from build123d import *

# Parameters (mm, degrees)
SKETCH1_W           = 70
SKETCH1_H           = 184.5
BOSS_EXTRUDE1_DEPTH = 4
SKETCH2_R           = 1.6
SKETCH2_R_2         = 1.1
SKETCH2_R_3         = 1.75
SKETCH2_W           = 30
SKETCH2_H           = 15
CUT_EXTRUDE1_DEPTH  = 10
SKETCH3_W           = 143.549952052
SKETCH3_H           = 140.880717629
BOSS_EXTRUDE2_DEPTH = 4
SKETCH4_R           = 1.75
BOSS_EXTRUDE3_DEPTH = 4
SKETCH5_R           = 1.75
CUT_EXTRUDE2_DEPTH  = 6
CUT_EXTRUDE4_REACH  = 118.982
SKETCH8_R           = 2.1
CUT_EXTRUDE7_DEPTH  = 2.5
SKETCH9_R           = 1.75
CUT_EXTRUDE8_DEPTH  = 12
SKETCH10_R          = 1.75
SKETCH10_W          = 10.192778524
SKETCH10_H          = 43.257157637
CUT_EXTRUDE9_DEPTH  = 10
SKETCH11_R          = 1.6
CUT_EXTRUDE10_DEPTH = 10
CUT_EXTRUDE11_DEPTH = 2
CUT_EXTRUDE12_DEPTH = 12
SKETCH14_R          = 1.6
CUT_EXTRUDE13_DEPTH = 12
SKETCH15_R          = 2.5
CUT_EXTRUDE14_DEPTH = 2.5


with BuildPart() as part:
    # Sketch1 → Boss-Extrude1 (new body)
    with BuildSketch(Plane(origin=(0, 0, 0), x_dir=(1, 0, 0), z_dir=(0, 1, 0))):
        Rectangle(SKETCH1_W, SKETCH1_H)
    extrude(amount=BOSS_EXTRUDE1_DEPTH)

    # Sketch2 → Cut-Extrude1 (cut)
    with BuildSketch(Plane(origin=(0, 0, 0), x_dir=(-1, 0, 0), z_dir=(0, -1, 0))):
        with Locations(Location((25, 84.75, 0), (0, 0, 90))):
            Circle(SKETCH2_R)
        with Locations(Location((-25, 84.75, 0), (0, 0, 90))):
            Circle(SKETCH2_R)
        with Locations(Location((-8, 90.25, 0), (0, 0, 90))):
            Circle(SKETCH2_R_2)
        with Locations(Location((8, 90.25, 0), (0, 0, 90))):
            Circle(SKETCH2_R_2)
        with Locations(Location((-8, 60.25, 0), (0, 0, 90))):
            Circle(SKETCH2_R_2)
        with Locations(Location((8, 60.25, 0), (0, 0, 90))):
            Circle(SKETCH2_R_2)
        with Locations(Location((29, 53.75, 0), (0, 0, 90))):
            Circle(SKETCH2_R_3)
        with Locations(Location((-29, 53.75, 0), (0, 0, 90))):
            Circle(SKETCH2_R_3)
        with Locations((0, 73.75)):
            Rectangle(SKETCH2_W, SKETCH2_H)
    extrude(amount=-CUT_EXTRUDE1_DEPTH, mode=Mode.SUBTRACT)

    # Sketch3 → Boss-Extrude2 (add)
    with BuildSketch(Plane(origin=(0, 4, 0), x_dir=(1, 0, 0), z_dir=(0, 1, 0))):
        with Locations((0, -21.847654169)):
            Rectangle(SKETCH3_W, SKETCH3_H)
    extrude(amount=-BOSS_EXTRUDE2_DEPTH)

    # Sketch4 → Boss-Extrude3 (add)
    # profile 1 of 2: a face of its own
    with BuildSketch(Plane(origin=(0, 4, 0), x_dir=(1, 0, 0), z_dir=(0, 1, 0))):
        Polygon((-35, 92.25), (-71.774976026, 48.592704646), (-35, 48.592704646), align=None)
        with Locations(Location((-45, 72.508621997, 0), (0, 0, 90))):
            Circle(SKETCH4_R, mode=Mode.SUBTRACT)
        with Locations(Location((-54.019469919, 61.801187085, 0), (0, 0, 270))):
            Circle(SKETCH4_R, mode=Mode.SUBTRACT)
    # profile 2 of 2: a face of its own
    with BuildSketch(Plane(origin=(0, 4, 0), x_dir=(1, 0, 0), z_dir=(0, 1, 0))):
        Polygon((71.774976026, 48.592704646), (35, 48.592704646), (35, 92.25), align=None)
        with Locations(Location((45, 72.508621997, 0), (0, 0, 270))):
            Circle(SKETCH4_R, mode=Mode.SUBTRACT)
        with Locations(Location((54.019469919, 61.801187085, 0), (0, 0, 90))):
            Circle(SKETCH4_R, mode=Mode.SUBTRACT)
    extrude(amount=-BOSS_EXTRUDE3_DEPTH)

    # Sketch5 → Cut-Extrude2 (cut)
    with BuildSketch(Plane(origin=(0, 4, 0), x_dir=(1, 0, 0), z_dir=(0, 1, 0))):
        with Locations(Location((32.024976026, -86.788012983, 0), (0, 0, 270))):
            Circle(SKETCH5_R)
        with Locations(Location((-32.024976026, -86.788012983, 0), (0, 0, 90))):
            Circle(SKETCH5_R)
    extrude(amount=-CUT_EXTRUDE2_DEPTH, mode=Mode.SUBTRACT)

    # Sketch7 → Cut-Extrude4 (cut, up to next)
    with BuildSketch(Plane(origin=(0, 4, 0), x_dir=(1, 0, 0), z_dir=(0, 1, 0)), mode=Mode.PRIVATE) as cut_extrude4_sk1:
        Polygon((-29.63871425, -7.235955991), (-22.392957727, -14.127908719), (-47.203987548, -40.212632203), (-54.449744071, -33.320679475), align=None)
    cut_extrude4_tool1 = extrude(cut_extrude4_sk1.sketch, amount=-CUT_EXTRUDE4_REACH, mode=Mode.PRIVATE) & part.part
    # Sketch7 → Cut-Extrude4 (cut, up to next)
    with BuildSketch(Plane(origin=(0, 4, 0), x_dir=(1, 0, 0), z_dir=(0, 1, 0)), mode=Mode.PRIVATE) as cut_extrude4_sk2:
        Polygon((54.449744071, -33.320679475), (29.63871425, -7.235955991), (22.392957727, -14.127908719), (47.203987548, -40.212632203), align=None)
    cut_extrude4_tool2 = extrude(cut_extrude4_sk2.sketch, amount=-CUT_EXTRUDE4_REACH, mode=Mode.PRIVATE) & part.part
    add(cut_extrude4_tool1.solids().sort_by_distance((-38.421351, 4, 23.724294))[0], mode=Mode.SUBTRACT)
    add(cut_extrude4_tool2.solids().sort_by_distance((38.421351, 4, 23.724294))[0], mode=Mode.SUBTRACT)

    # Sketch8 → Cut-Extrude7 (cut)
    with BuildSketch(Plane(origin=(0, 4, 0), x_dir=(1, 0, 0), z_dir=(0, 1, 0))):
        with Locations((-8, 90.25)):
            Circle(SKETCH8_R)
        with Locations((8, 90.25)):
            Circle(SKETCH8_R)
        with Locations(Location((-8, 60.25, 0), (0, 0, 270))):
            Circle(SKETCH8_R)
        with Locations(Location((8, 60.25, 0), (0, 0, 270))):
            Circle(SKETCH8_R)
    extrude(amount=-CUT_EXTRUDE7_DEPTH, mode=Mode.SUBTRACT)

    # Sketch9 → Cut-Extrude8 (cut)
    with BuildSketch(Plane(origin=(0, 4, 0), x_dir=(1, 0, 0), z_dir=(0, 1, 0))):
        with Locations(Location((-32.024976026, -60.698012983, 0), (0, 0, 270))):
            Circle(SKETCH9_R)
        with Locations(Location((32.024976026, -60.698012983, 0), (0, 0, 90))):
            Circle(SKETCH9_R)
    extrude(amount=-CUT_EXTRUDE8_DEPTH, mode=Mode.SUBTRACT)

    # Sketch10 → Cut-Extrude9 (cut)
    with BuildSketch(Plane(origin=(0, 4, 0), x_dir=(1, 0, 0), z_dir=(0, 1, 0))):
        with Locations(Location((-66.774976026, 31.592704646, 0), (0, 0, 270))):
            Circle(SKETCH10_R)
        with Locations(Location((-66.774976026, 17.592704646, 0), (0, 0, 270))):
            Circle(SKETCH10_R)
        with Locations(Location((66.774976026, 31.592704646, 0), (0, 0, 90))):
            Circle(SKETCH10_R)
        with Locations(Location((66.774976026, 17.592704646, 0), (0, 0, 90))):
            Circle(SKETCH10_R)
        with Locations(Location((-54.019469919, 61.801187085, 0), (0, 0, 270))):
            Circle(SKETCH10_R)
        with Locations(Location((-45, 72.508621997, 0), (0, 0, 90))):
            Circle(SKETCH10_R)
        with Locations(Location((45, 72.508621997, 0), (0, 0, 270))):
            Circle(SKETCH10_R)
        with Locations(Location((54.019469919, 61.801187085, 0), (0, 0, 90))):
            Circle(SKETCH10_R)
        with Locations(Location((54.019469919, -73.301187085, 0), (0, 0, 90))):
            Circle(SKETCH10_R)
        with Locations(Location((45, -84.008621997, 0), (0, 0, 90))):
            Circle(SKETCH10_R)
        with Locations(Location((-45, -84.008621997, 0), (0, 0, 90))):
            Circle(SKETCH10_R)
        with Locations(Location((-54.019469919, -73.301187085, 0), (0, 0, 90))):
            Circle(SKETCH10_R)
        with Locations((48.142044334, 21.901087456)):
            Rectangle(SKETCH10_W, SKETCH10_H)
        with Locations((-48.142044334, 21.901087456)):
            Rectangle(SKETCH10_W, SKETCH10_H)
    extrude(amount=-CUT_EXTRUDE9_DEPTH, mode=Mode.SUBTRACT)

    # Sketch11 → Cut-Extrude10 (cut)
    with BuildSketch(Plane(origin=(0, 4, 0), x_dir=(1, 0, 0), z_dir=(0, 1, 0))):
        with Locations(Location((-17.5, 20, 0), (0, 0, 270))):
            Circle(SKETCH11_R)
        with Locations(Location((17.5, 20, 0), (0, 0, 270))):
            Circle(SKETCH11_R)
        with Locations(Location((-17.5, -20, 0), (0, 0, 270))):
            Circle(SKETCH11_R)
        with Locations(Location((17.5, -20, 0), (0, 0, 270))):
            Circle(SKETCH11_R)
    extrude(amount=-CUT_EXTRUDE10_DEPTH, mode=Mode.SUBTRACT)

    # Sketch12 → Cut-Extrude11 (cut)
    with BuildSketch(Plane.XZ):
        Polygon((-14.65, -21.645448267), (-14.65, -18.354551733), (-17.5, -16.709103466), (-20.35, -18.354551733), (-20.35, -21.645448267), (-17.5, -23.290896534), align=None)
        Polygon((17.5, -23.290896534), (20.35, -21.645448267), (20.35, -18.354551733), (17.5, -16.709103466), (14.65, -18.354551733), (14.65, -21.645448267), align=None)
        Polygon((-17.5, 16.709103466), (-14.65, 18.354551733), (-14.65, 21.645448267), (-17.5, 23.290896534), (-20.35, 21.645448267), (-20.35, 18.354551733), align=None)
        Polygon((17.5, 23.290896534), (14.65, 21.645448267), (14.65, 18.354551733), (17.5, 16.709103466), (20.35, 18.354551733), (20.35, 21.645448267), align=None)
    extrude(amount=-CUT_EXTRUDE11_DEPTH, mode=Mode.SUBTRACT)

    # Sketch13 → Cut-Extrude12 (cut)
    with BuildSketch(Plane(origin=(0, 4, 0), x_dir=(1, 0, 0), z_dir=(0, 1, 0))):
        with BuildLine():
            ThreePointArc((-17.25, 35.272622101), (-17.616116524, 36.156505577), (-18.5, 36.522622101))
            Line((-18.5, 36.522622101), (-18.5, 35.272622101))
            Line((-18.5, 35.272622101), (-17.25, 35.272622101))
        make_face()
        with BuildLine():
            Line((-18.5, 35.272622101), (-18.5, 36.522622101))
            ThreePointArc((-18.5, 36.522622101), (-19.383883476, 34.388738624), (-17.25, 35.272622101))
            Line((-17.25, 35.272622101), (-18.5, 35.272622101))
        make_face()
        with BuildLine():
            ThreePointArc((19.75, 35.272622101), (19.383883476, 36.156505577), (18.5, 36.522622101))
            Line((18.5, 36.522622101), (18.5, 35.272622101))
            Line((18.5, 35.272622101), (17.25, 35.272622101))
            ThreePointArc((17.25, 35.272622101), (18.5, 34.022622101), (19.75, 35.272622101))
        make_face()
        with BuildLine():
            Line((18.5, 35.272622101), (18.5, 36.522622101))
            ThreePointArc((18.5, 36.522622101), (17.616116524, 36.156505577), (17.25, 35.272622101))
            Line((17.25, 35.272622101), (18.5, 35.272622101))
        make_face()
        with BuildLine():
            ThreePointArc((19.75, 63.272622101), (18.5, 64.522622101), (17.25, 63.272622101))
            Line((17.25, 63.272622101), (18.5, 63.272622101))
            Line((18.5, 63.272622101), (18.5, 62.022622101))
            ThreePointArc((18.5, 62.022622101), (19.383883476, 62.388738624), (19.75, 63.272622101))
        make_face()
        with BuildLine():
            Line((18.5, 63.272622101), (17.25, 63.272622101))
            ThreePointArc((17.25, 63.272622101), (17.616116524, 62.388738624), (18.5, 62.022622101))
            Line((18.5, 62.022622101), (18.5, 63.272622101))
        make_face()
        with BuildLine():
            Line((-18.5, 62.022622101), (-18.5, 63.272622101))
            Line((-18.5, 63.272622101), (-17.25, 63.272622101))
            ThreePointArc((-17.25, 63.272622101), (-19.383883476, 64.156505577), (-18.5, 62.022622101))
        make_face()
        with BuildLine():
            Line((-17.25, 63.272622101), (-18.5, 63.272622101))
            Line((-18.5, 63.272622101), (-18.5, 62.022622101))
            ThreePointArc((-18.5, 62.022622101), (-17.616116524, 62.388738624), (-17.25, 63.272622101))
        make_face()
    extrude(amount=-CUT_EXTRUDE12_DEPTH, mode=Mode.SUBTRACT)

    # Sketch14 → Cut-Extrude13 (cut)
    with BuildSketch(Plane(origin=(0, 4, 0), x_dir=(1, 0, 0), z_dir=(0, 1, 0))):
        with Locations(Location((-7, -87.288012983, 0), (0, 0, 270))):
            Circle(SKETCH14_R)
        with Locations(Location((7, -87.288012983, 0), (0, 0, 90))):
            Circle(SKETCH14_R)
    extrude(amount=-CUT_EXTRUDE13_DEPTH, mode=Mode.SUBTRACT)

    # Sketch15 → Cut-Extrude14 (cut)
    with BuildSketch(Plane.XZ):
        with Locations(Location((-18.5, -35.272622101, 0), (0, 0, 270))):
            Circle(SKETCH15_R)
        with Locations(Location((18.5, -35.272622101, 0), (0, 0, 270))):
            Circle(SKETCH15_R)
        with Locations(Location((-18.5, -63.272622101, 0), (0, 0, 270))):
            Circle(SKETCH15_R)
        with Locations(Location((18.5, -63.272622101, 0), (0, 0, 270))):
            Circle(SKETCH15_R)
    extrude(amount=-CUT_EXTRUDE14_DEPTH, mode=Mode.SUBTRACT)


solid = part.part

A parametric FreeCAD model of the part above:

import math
import FreeCAD as App
import Part
import Sketcher

V = App.Vector
Q = App.Units.Quantity


def add_polygon(sketch, points):
    """Adds a closed chain of lines whose ends are joined by coincident constraints."""
    first, n = sketch.GeometryCount, len(points)
    for a, b in zip(points, points[1:] + points[:1]):
        sketch.addGeometry(Part.LineSegment(App.Vector(*a, 0), App.Vector(*b, 0)), False)
    for i in range(n):
        sketch.addConstraint(Sketcher.Constraint("Coincident", first + i, 2, first + (i + 1) % n, 1))

doc = App.newDocument("Part")
body = doc.addObject("PartDesign::Body", "Body")

# Sketch on XZ plane
sketch1 = body.newObject("Sketcher::SketchObject", "Sketch")
sketch1.AttachmentSupport = (doc.getObject("XZ_Plane"), [""])
sketch1.MapMode = "FlatFace"
add_polygon(sketch1, [(-35, -92), (-35, 92), (35, 92), (35, -92)])  # lines 0-3
sketch1.addConstraint(Sketcher.Constraint("Vertical", 0))
sketch1.addConstraint(Sketcher.Constraint("Horizontal", 1))
sketch1.addConstraint(Sketcher.Constraint("Vertical", 2))
sketch1.addConstraint(Sketcher.Constraint("Horizontal", 3))
sketch1.addConstraint(Sketcher.Constraint("Symmetric", 0, 2, 2, 2, -1, 1))
sketch1.addConstraint(Sketcher.Constraint("DistanceX", 1, 1, 1, 2, 70.0))
sketch1.addConstraint(Sketcher.Constraint("DistanceY", 0, 1, 0, 2, 184.5))
pad1 = body.newObject("PartDesign::Pad", "Pad")
pad1.Profile = sketch1
pad1.Length = 4
pad1.Reversed = True

# Sketch on XZ plane
sketch2 = body.newObject("Sketcher::SketchObject", "Sketch001")
sketch2.AttachmentSupport = (doc.getObject("XZ_Plane"), [""])
sketch2.MapMode = "FlatFace"
sketch2.addGeometry(Part.Circle(V(-25, -84.8, 0), V(0, 0, 1), 1.6), False)  # 0
sketch2.addGeometry(Part.Circle(V(25, -84.8, 0), V(0, 0, 1), 1.6), False)  # 1
sketch2.addGeometry(Part.Circle(V(8, -90.2, 0), V(0, 0, 1), 1.1), False)  # 2
sketch2.addGeometry(Part.Circle(V(-8, -90.2, 0), V(0, 0, 1), 1.1), False)  # 3
sketch2.addGeometry(Part.Circle(V(8, -60.2, 0), V(0, 0, 1), 1.1), False)  # 4
sketch2.addGeometry(Part.Circle(V(-8, -60.2, 0), V(0, 0, 1), 1.1), False)  # 5
sketch2.addGeometry(Part.Circle(V(-29, -53.8, 0), V(0, 0, 1), 1.8), False)  # 6
sketch2.addGeometry(Part.Circle(V(29, -53.8, 0), V(0, 0, 1), 1.8), False)  # 7
add_polygon(sketch2, [(15, -81.2), (15, -66.2), (-15, -66.2), (-15, -81.2)])  # lines 8-11
sketch2.addConstraint(Sketcher.Constraint("Vertical", 8))
sketch2.addConstraint(Sketcher.Constraint("Horizontal", 9))
sketch2.addConstraint(Sketcher.Constraint("Vertical", 10))
sketch2.addConstraint(Sketcher.Constraint("Horizontal", 11))
sketch2.addConstraint(Sketcher.Constraint("Equal", 0, 1))
sketch2.addConstraint(Sketcher.Constraint("Equal", 2, 3))
sketch2.addConstraint(Sketcher.Constraint("Equal", 3, 4))
sketch2.addConstraint(Sketcher.Constraint("Equal", 4, 5))
sketch2.addConstraint(Sketcher.Constraint("Equal", 6, 7))
sketch2.addConstraint(Sketcher.Constraint("Symmetric", 0, 3, 1, 3, -2))
sketch2.addConstraint(Sketcher.Constraint("Symmetric", 2, 3, 3, 3, -2))
sketch2.addConstraint(Sketcher.Constraint("Symmetric", 4, 3, 5, 3, -2))
sketch2.addConstraint(Sketcher.Constraint("Symmetric", 6, 3, 7, 3, -2))
sketch2.addConstraint(Sketcher.Constraint("Vertical", 2, 3, 4, 3))
sketch2.addConstraint(Sketcher.Constraint("Diameter", 0, 3.2))
sketch2.addConstraint(Sketcher.Constraint("Diameter", 2, 2.2))
sketch2.addConstraint(Sketcher.Constraint("Diameter", 6, 3.5))
sketch2.addConstraint(Sketcher.Constraint("DistanceX", 9, 2, 9, 1, 30.0))
sketch2.addConstraint(Sketcher.Constraint("DistanceY", 8, 1, 8, 2, 15.0))
sketch2.addConstraint(Sketcher.Constraint("DistanceX", 0, 3, -1, 1, 25.0))
sketch2.addConstraint(Sketcher.Constraint("DistanceX", -1, 1, 2, 3, 8.0))
sketch2.addConstraint(Sketcher.Constraint("DistanceX", 6, 3, -1, 1, 29.0))
sketch2.addConstraint(Sketcher.Constraint("DistanceX", -1, 1, 8, 2, 15.0))
sketch2.addConstraint(Sketcher.Constraint("DistanceY", 2, 3, 4, 3, 30.0))
sketch2.addConstraint(Sketcher.Constraint("DistanceY", 0, 3, 6, 3, 31.0))
sketch2.addConstraint(Sketcher.Constraint("DistanceY", 8, 2, 4, 3, 6.0))
sketch2.addConstraint(Sketcher.Constraint("DistanceY", 2, 3, 1, 3, 5.5))
sketch2.addConstraint(Sketcher.Constraint("DistanceY", 0, 3, -1, 1, 84.75))
pocket1 = body.newObject("PartDesign::Pocket", "Pocket")
pocket1.Profile = sketch2
pocket1.Length = 10

# Sketch on XZ plane
sketch3 = body.newObject("Sketcher::SketchObject", "Sketch002")
sketch3.AttachmentSupport = (doc.getObject("XZ_Plane"), [""])
sketch3.MapMode = "FlatFace"
sketch3.AttachmentOffset = App.Placement(V(0, 0, -4), App.Rotation())
add_polygon(sketch3, [(-72, -49), (-72, 92), (72, 92), (72, -49)])  # lines 0-3
sketch3.addConstraint(Sketcher.Constraint("Vertical", 0))
sketch3.addConstraint(Sketcher.Constraint("Horizontal", 1))
sketch3.addConstraint(Sketcher.Constraint("Vertical", 2))
sketch3.addConstraint(Sketcher.Constraint("Horizontal", 3))
sketch3.addConstraint(Sketcher.Constraint("DistanceX", 1, 1, 1, 2, 143.549952))
sketch3.addConstraint(Sketcher.Constraint("DistanceY", 0, 1, 0, 2, 140.880718))
sketch3.addConstraint(Sketcher.Constraint("DistanceX", 0, 2, -1, 1, 71.774976))
sketch3.addConstraint(Sketcher.Constraint("DistanceY", -1, 1, 0, 2, 92.288013))
pad2 = body.newObject("PartDesign::Pad", "Pad001")
pad2.Profile = sketch3
pad2.Length = 4

# Sketch on XZ plane
sketch4 = body.newObject("Sketcher::SketchObject", "Sketch003")
sketch4.AttachmentSupport = (doc.getObject("XZ_Plane"), [""])
sketch4.MapMode = "FlatFace"
sketch4.AttachmentOffset = App.Placement(V(0, 0, -4), App.Rotation())
add_polygon(sketch4, [(-35, -92.2), (-71.8, -48.6), (-35, -48.6)])  # lines 0-2
sketch4.addGeometry(Part.Circle(V(-54, -61.8, 0), V(0, 0, 1), 1.8), False)  # 3
sketch4.addGeometry(Part.Circle(V(-45, -72.5, 0), V(0, 0, 1), 1.8), False)  # 4
add_polygon(sketch4, [(35, -48.6), (71.8, -48.6), (35, -92.2)])  # lines 5-7
sketch4.addGeometry(Part.Circle(V(54, -61.8, 0), V(0, 0, 1), 1.8), False)  # 8
sketch4.addGeometry(Part.Circle(V(45, -72.5, 0), V(0, 0, 1), 1.8), False)  # 9
sketch4.addConstraint(Sketcher.Constraint("Horizontal", 1))
sketch4.addConstraint(Sketcher.Constraint("Vertical", 2))
sketch4.addConstraint(Sketcher.Constraint("Horizontal", 5))
sketch4.addConstraint(Sketcher.Constraint("Vertical", 7))
sketch4.addConstraint(Sketcher.Constraint("Equal", 3, 4))
sketch4.addConstraint(Sketcher.Constraint("Equal", 4, 8))
sketch4.addConstraint(Sketcher.Constraint("Equal", 8, 9))
sketch4.addConstraint(Sketcher.Constraint("Symmetric", 3, 3, 8, 3, -2))
sketch4.addConstraint(Sketcher.Constraint("Symmetric", 4, 3, 9, 3, -2))
sketch4.addConstraint(Sketcher.Constraint("Symmetric", 0, 2, 5, 2, -2))
sketch4.addConstraint(Sketcher.Constraint("Symmetric", 2, 2, 6, 2, -2))
sketch4.addConstraint(Sketcher.Constraint("Diameter", 3, 3.5))
sketch4.addConstraint(Sketcher.Constraint("DistanceX", 4, 3, -1, 1, 45.0))
sketch4.addConstraint(Sketcher.Constraint("DistanceX", 1, 2, -1, 1, 35.0))
sketch4.addConstraint(Sketcher.Constraint("DistanceY", 2, 2, -1, 1, 92.25))
sketch4.addConstraint(Sketcher.Constraint("Distance", 0, 57.082031))
sketch4.addConstraint(Sketcher.Constraint("DistanceX", 1, 1, 1, 2, 36.774976))
sketch4.addConstraint(Sketcher.Constraint("DistanceX", 3, 3, -1, 1, 54.01947))
sketch4.addConstraint(Sketcher.Constraint("DistanceY", 4, 3, -1, 1, 72.508622))
sketch4.addConstraint(Sketcher.Constraint("DistanceY", 3, 3, -1, 1, 61.801187))
pad3 = body.newObject("PartDesign::Pad", "Pad002")
pad3.Profile = sketch4
pad3.Length = 4

# Sketch on XZ plane
sketch5 = body.newObject("Sketcher::SketchObject", "Sketch004")
sketch5.AttachmentSupport = (doc.getObject("XZ_Plane"), [""])
sketch5.MapMode = "FlatFace"
sketch5.AttachmentOffset = App.Placement(V(0, 0, -4), App.Rotation())
sketch5.addGeometry(Part.Circle(V(32, 86.8, 0), V(0, 0, 1), 1.8), False)
sketch5.addGeometry(Part.Circle(V(-32, 86.8, 0), V(0, 0, 1), 1.8), False)
sketch5.addConstraint(Sketcher.Constraint("Equal", 0, 1))
sketch5.addConstraint(Sketcher.Constraint("Symmetric", 0, 3, 1, 3, -2))
sketch5.addConstraint(Sketcher.Constraint("Diameter", 0, 3.5))
sketch5.addConstraint(Sketcher.Constraint("DistanceX", -1, 1, 0, 3, 32.024976))
sketch5.addConstraint(Sketcher.Constraint("DistanceY", -1, 1, 0, 3, 86.788013))
pocket2 = body.newObject("PartDesign::Pocket", "Pocket001")
pocket2.Profile = sketch5
pocket2.Length = 6
pocket2.Reversed = True

# Sketch on XZ plane
sketch6 = body.newObject("Sketcher::SketchObject", "Sketch005")
sketch6.AttachmentSupport = (doc.getObject("XZ_Plane"), [""])
sketch6.MapMode = "FlatFace"
sketch6.AttachmentOffset = App.Placement(V(0, 0, -4), App.Rotation())
add_polygon(sketch6, [(-22, 14), (-30, 7), (-54, 33), (-47, 40)])  # lines 0-3
sketch6.addConstraint(Sketcher.Constraint("Perpendicular", 0, 1))
sketch6.addConstraint(Sketcher.Constraint("Perpendicular", 1, 2))
sketch6.addConstraint(Sketcher.Constraint("Perpendicular", 2, 3))
sketch6.addConstraint(Sketcher.Constraint("Distance", 0, 10.0))
sketch6.addConstraint(Sketcher.Constraint("Distance", 1, 36.0))
sketch6.addConstraint(Sketcher.Constraint("DistanceY", -1, 1, 1, 2, 33.320679))
sketch6.addConstraint(Sketcher.Constraint("DistanceY", -1, 1, 3, 2, 14.127909))
sketch6.addConstraint(Sketcher.Constraint("DistanceX", 0, 2, -1, 1, 29.638714))
pocket3 = body.newObject("PartDesign::Pocket", "Pocket002")
pocket3.Profile = sketch6
pocket3.Type = "UpToFirst"
pocket3.Reversed = True

# Sketch on XZ plane
sketch7 = body.newObject("Sketcher::SketchObject", "Sketch006")
sketch7.AttachmentSupport = (doc.getObject("XZ_Plane"), [""])
sketch7.MapMode = "FlatFace"
sketch7.AttachmentOffset = App.Placement(V(0, 0, -4), App.Rotation())
add_polygon(sketch7, [(54, 33), (30, 7), (22, 14), (47, 40)])  # lines 0-3
sketch7.addConstraint(Sketcher.Constraint("Perpendicular", 0, 1))
sketch7.addConstraint(Sketcher.Constraint("Perpendicular", 1, 2))
sketch7.addConstraint(Sketcher.Constraint("Perpendicular", 2, 3))
sketch7.addConstraint(Sketcher.Constraint("Distance", 0, 36.0))
sketch7.addConstraint(Sketcher.Constraint("Distance", 1, 10.0))
sketch7.addConstraint(Sketcher.Constraint("DistanceY", -1, 1, 1, 2, 14.127909))
sketch7.addConstraint(Sketcher.Constraint("DistanceY", -1, 1, 3, 2, 33.320679))
sketch7.addConstraint(Sketcher.Constraint("DistanceX", -1, 1, 0, 2, 29.638714))
pocket4 = body.newObject("PartDesign::Pocket", "Pocket003")
pocket4.Profile = sketch7
pocket4.Type = "UpToFirst"
pocket4.Reversed = True

# Sketch on XZ plane
sketch8 = body.newObject("Sketcher::SketchObject", "Sketch007")
sketch8.AttachmentSupport = (doc.getObject("XZ_Plane"), [""])
sketch8.MapMode = "FlatFace"
sketch8.AttachmentOffset = App.Placement(V(0, 0, -4), App.Rotation())
sketch8.addGeometry(Part.Circle(V(-8, -90.2, 0), V(0, 0, 1), 2.1), False)
sketch8.addGeometry(Part.Circle(V(8, -90.2, 0), V(0, 0, 1), 2.1), False)
sketch8.addGeometry(Part.Circle(V(-8, -60.2, 0), V(0, 0, 1), 2.1), False)
sketch8.addGeometry(Part.Circle(V(8, -60.2, 0), V(0, 0, 1), 2.1), False)
sketch8.addConstraint(Sketcher.Constraint("Equal", 0, 1))
sketch8.addConstraint(Sketcher.Constraint("Equal", 1, 2))
sketch8.addConstraint(Sketcher.Constraint("Equal", 2, 3))
sketch8.addConstraint(Sketcher.Constraint("Symmetric", 0, 3, 1, 3, -2))
sketch8.addConstraint(Sketcher.Constraint("Symmetric", 2, 3, 3, 3, -2))
sketch8.addConstraint(Sketcher.Constraint("Vertical", 0, 3, 2, 3))
sketch8.addConstraint(Sketcher.Constraint("Diameter", 0, 4.2))
sketch8.addConstraint(Sketcher.Constraint("DistanceX", 0, 3, -1, 1, 8.0))
sketch8.addConstraint(Sketcher.Constraint("DistanceY", 0, 3, 2, 3, 30.0))
sketch8.addConstraint(Sketcher.Constraint("DistanceY", 0, 3, -1, 1, 90.25))
pocket5 = body.newObject("PartDesign::Pocket", "Pocket004")
pocket5.Profile = sketch8
pocket5.Length = 2.5
pocket5.Reversed = True

# Sketch on XZ plane
sketch9 = body.newObject("Sketcher::SketchObject", "Sketch008")
sketch9.AttachmentSupport = (doc.getObject("XZ_Plane"), [""])
sketch9.MapMode = "FlatFace"
sketch9.AttachmentOffset = App.Placement(V(0, 0, -4), App.Rotation())
sketch9.addGeometry(Part.Circle(V(-32, 60.7, 0), V(0, 0, 1), 1.8), False)
sketch9.addGeometry(Part.Circle(V(32, 60.7, 0), V(0, 0, 1), 1.8), False)
sketch9.addConstraint(Sketcher.Constraint("Equal", 0, 1))
sketch9.addConstraint(Sketcher.Constraint("Symmetric", 0, 3, 1, 3, -2))
sketch9.addConstraint(Sketcher.Constraint("Diameter", 0, 3.5))
sketch9.addConstraint(Sketcher.Constraint("DistanceX", 0, 3, -1, 1, 32.024976))
sketch9.addConstraint(Sketcher.Constraint("DistanceY", -1, 1, 0, 3, 60.698013))
pocket6 = body.newObject("PartDesign::Pocket", "Pocket005")
pocket6.Profile = sketch9
pocket6.Length = 12
pocket6.Reversed = True

# Sketch on XZ plane
sketch10 = body.newObject("Sketcher::SketchObject", "Sketch009")
sketch10.AttachmentSupport = (doc.getObject("XZ_Plane"), [""])
sketch10.MapMode = "FlatFace"
sketch10.AttachmentOffset = App.Placement(V(0, 0, -4), App.Rotation())
sketch10.addGeometry(Part.Circle(V(-66.8, -31.6, 0), V(0, 0, 1), 1.8), False)  # 0
sketch10.addGeometry(Part.Circle(V(-66.8, -17.6, 0), V(0, 0, 1), 1.8), False)  # 1
sketch10.addGeometry(Part.Circle(V(66.8, -31.6, 0), V(0, 0, 1), 1.8), False)  # 2
sketch10.addGeometry(Part.Circle(V(66.8, -17.6, 0), V(0, 0, 1), 1.8), False)  # 3
sketch10.addGeometry(Part.Circle(V(-54, -61.8, 0), V(0, 0, 1), 1.8), False)  # 4
sketch10.addGeometry(Part.Circle(V(-45, -72.5, 0), V(0, 0, 1), 1.8), False)  # 5
sketch10.addGeometry(Part.Circle(V(45, -72.5, 0), V(0, 0, 1), 1.8), False)  # 6
sketch10.addGeometry(Part.Circle(V(54, -61.8, 0), V(0, 0, 1), 1.8), False)  # 7
sketch10.addGeometry(Part.Circle(V(54, 73.3, 0), V(0, 0, 1), 1.8), False)  # 8
sketch10.addGeometry(Part.Circle(V(45, 84, 0), V(0, 0, 1), 1.8), False)  # 9
sketch10.addGeometry(Part.Circle(V(-45, 84, 0), V(0, 0, 1), 1.8), False)  # 10
sketch10.addGeometry(Part.Circle(V(-54, 73.3, 0), V(0, 0, 1), 1.8), False)  # 11
add_polygon(sketch10, [(43, -43.5), (43, -0.3), (53.2, -0.3), (53.2, -43.5)])  # lines 12-15
add_polygon(sketch10, [(-53.2, -43.5), (-53.2, -0.3), (-43, -0.3), (-43, -43.5)])  # lines 16-19
sketch10.addConstraint(Sketcher.Constraint("Vertical", 12))
sketch10.addConstraint(Sketcher.Constraint("Horizontal", 13))
sketch10.addConstraint(Sketcher.Constraint("Vertical", 14))
sketch10.addConstraint(Sketcher.Constraint("Horizontal", 15))
sketch10.addConstraint(Sketcher.Constraint("Vertical", 16))
sketch10.addConstraint(Sketcher.Constraint("Horizontal", 17))
sketch10.addConstraint(Sketcher.Constraint("Vertical", 18))
sketch10.addConstraint(Sketcher.Constraint("Horizontal", 19))
sketch10.addConstraint(Sketcher.Constraint("Equal", 0, 1))
sketch10.addConstraint(Sketcher.Constraint("Equal", 1, 2))
sketch10.addConstraint(Sketcher.Constraint("Equal", 2, 3))
sketch10.addConstraint(Sketcher.Constraint("Equal", 3, 4))
sketch10.addConstraint(Sketcher.Constraint("Equal", 4, 5))
sketch10.addConstraint(Sketcher.Constraint("Equal", 5, 6))
sketch10.addConstraint(Sketcher.Constraint("Equal", 6, 7))
sketch10.addConstraint(Sketcher.Constraint("Equal", 7, 8))
sketch10.addConstraint(Sketcher.Constraint("Equal", 8, 9))
sketch10.addConstraint(Sketcher.Constraint("Equal", 9, 10))
sketch10.addConstraint(Sketcher.Constraint("Equal", 10, 11))
sketch10.addConstraint(Sketcher.Constraint("Symmetric", 0, 3, 2, 3, -2))
sketch10.addConstraint(Sketcher.Constraint("Symmetric", 1, 3, 3, 3, -2))
sketch10.addConstraint(Sketcher.Constraint("Symmetric", 5, 3, 6, 3, -2))
sketch10.addConstraint(Sketcher.Constraint("Symmetric", 4, 3, 7, 3, -2))
sketch10.addConstraint(Sketcher.Constraint("Symmetric", 9, 3, 10, 3, -2))
sketch10.addConstraint(Sketcher.Constraint("Symmetric", 8, 3, 11, 3, -2))
sketch10.addConstraint(Sketcher.Constraint("Symmetric", 13, 2, 16, 2, -2))
sketch10.addConstraint(Sketcher.Constraint("Symmetric", 15, 2, 18, 2, -2))
sketch10.addConstraint(Sketcher.Constraint("Vertical", 0, 3, 1, 3))
sketch10.addConstraint(Sketcher.Constraint("Vertical", 7, 3, 8, 3))
sketch10.addConstraint(Sketcher.Constraint("Vertical", 6, 3, 9, 3))
sketch10.addConstraint(Sketcher.Constraint("Diameter", 0, 3.5))
sketch10.addConstraint(Sketcher.Constraint("DistanceX", 5, 3, -1, 1, 45.0))
sketch10.addConstraint(Sketcher.Constraint("DistanceY", 0, 3, 1, 3, 14.0))
sketch10.addConstraint(Sketcher.Constraint("DistanceX", 13, 1, 13, 2, 10.192779))
sketch10.addConstraint(Sketcher.Constraint("DistanceY", 12, 1, 12, 2, 43.257158))
sketch10.addConstraint(Sketcher.Constraint("DistanceX", 4, 3, -1, 1, 54.01947))
sketch10.addConstraint(Sketcher.Constraint("DistanceY", 5, 3, -1, 1, 72.508622))
sketch10.addConstraint(Sketcher.Constraint("DistanceY", -1, 1, 9, 3, 84.008622))
sketch10.addConstraint(Sketcher.Constraint("DistanceY", 12, 2, -1, 1, 0.272509))
sketch10.addConstraint(Sketcher.Constraint("DistanceY", 3, 3, 8, 3, 90.893892))
sketch10.addConstraint(Sketcher.Constraint("DistanceY", 6, 3, 8, 3, 145.809809))
sketch10.addConstraint(Sketcher.Constraint("DistanceY", 7, 3, 9, 3, 145.809809))
sketch10.addConstraint(Sketcher.Constraint("DistanceX", 12, 2, 3, 3, 23.729321))
sketch10.addConstraint(Sketcher.Constraint("DistanceX", 0, 3, -1, 1, 66.774976))
pocket7 = body.newObject("PartDesign::Pocket", "Pocket006")
pocket7.Profile = sketch10
pocket7.Length = 10
pocket7.Reversed = True

# Sketch on XZ plane
sketch11 = body.newObject("Sketcher::SketchObject", "Sketch010")
sketch11.AttachmentSupport = (doc.getObject("XZ_Plane"), [""])
sketch11.MapMode = "FlatFace"
sketch11.AttachmentOffset = App.Placement(V(0, 0, -4), App.Rotation())
sketch11.addGeometry(Part.Circle(V(-17.5, -20, 0), V(0, 0, 1), 1.6), False)
sketch11.addGeometry(Part.Circle(V(17.5, -20, 0), V(0, 0, 1), 1.6), False)
sketch11.addGeometry(Part.Circle(V(-17.5, 20, 0), V(0, 0, 1), 1.6), False)
sketch11.addGeometry(Part.Circle(V(17.5, 20, 0), V(0, 0, 1), 1.6), False)
sketch11.addConstraint(Sketcher.Constraint("Equal", 0, 1))
sketch11.addConstraint(Sketcher.Constraint("Equal", 1, 2))
sketch11.addConstraint(Sketcher.Constraint("Equal", 2, 3))
sketch11.addConstraint(Sketcher.Constraint("Symmetric", 1, 3, 2, 3, -1, 1))
sketch11.addConstraint(Sketcher.Constraint("Symmetric", 0, 3, 3, 3, -1, 1))
sketch11.addConstraint(Sketcher.Constraint("Symmetric", 0, 3, 1, 3, -2))
sketch11.addConstraint(Sketcher.Constraint("Diameter", 0, 3.2))
sketch11.addConstraint(Sketcher.Constraint("DistanceY", 0, 3, -1, 1, 20.0))
sketch11.addConstraint(Sketcher.Constraint("DistanceX", 0, 3, 1, 3, 35.0))
pocket8 = body.newObject("PartDesign::Pocket", "Pocket007")
pocket8.Profile = sketch11
pocket8.Length = 10
pocket8.Reversed = True

# Sketch on XZ plane
sketch12 = body.newObject("Sketcher::SketchObject", "Sketch011")
sketch12.AttachmentSupport = (doc.getObject("XZ_Plane"), [""])
sketch12.MapMode = "FlatFace"
add_polygon(sketch12, [(-14.7, -21.6), (-14.7, -18.4), (-17.5, -16.7), (-20.4, -18.4), (-20.4, -21.6), (-17.5, -23.3)])  # lines 0-5
add_polygon(sketch12, [(17.5, -23.3), (20.4, -21.6), (20.4, -18.4), (17.5, -16.7), (14.7, -18.4), (14.7, -21.6)])  # lines 6-11
add_polygon(sketch12, [(-17.5, 16.7), (-14.7, 18.4), (-14.7, 21.6), (-17.5, 23.3), (-20.4, 21.6), (-20.4, 18.4)])  # lines 12-17
add_polygon(sketch12, [(17.5, 23.3), (14.7, 21.6), (14.7, 18.4), (17.5, 16.7), (20.4, 18.4), (20.4, 21.6)])  # lines 18-23
sketch12.addConstraint(Sketcher.Constraint("Vertical", 0))
sketch12.addConstraint(Sketcher.Constraint("Vertical", 3))
sketch12.addConstraint(Sketcher.Constraint("Vertical", 7))
sketch12.addConstraint(Sketcher.Constraint("Vertical", 10))
sketch12.addConstraint(Sketcher.Constraint("Vertical", 13))
sketch12.addConstraint(Sketcher.Constraint("Vertical", 16))
sketch12.addConstraint(Sketcher.Constraint("Vertical", 19))
sketch12.addConstraint(Sketcher.Constraint("Vertical", 22))
sketch12.addConstraint(Sketcher.Constraint("Symmetric", 9, 2, 12, 2, -1, 1))
sketch12.addConstraint(Sketcher.Constraint("Symmetric", 11, 2, 14, 2, -1, 1))
sketch12.addConstraint(Sketcher.Constraint("Symmetric", 6, 2, 15, 2, -1, 1))
sketch12.addConstraint(Sketcher.Constraint("Symmetric", 8, 2, 17, 2, -1, 1))
sketch12.addConstraint(Sketcher.Constraint("Symmetric", 5, 2, 18, 2, -1, 1))
sketch12.addConstraint(Sketcher.Constraint("Symmetric", 1, 2, 20, 2, -1, 1))
sketch12.addConstraint(Sketcher.Constraint("Symmetric", 2, 2, 21, 2, -1, 1))
sketch12.addConstraint(Sketcher.Constraint("Symmetric", 4, 2, 23, 2, -1, 1))
sketch12.addConstraint(Sketcher.Constraint("Symmetric", 3, 2, 6, 2, -2))
sketch12.addConstraint(Sketcher.Constraint("Symmetric", 1, 2, 8, 2, -2))
sketch12.addConstraint(Sketcher.Constraint("Symmetric", 0, 2, 9, 2, -2))
sketch12.addConstraint(Sketcher.Constraint("Symmetric", 4, 2, 11, 2, -2))
sketch12.addConstraint(Sketcher.Constraint("Parallel", 1, 4))
sketch12.addConstraint(Sketcher.Constraint("Parallel", 2, 5))
sketch12.addConstraint(Sketcher.Constraint("Parallel", 5, 6))
sketch12.addConstraint(Sketcher.Constraint("Parallel", 4, 8))
sketch12.addConstraint(Sketcher.Constraint("Parallel", 8, 11))
sketch12.addConstraint(Sketcher.Constraint("Parallel", 11, 14))
sketch12.addConstraint(Sketcher.Constraint("Parallel", 14, 17))
sketch12.addConstraint(Sketcher.Constraint("Parallel", 17, 20))
sketch12.addConstraint(Sketcher.Constraint("Parallel", 20, 23))
sketch12.addConstraint(Sketcher.Constraint("Horizontal", 0, 2, 2, 2))
sketch12.addConstraint(Sketcher.Constraint("Horizontal", 3, 2, 5, 2))
sketch12.addConstraint(Sketcher.Constraint("Angle", 1, Q("150 deg")))
sketch12.addConstraint(Sketcher.Constraint("DistanceX", 5, 2, 6, 2, 35.0))
sketch12.addConstraint(Sketcher.Constraint("DistanceY", 5, 2, 12, 2, 40.0))
sketch12.addConstraint(Sketcher.Constraint("DistanceX", 2, 2, 0, 2, 5.7))
sketch12.addConstraint(Sketcher.Constraint("DistanceY", 0, 1, 0, 2, 3.290897))
pocket9 = body.newObject("PartDesign::Pocket", "Pocket008")
pocket9.Profile = sketch12
pocket9.Length = 2

# Sketch on XZ plane
sketch13 = body.newObject("Sketcher::SketchObject", "Sketch012")
sketch13.AttachmentSupport = (doc.getObject("XZ_Plane"), [""])
sketch13.MapMode = "FlatFace"
sketch13.AttachmentOffset = App.Placement(V(0, 0, -4), App.Rotation())
sketch13.addGeometry(Part.ArcOfCircle(Part.Circle(V(-18.5, -35.3, 0), V(0, 0, 1), 1.3), math.radians(-90), math.radians(0)), False)
sketch13.addGeometry(Part.ArcOfCircle(Part.Circle(V(-18.5, -35.3, 0), V(0, 0, 1), 1.2), math.radians(0), math.radians(270)), False)
sketch13.addGeometry(Part.ArcOfCircle(Part.Circle(V(18.5, -35.3, 0), V(0, 0, 1), 1.3), math.radians(-90), math.radians(0)), False)
sketch13.addGeometry(Part.ArcOfCircle(Part.Circle(V(18.5, -35.3, 0), V(0, 0, 1), 1.3), math.radians(-180), math.radians(-90)), False)
sketch13.addGeometry(Part.ArcOfCircle(Part.Circle(V(18.5, -35.3, 0), V(0, 0, 1), 1.2), math.radians(0), math.radians(180)), False)
sketch13.addGeometry(Part.ArcOfCircle(Part.Circle(V(18.5, -63.3, 0), V(0, 0, 1), 1.2), math.radians(180), math.radians(360)), False)
sketch13.addGeometry(Part.ArcOfCircle(Part.Circle(V(18.5, -63.3, 0), V(0, 0, 1), 1.2), math.radians(90), math.radians(180)), False)
sketch13.addGeometry(Part.ArcOfCircle(Part.Circle(V(18.5, -63.3, 0), V(0, 0, 1), 1.2), math.radians(0), math.radians(90)), False)
sketch13.addGeometry(Part.ArcOfCircle(Part.Circle(V(-18.5, -63.3, 0), V(0, 0, 1), 1.2), math.radians(90), math.radians(360)), False)
sketch13.addGeometry(Part.ArcOfCircle(Part.Circle(V(-18.5, -63.3, 0), V(0, 0, 1), 1.2), math.radians(0), math.radians(90)), False)
sketch13.addConstraint(Sketcher.Constraint("Tangent", 0, 1, 1, 2))
sketch13.addConstraint(Sketcher.Constraint("Coincident", 1, 1, 0, 2))
sketch13.addConstraint(Sketcher.Constraint("Tangent", 2, 1, 3, 2))
sketch13.addConstraint(Sketcher.Constraint("Tangent", 3, 1, 4, 2))
sketch13.addConstraint(Sketcher.Constraint("Tangent", 4, 1, 2, 2))
sketch13.addConstraint(Sketcher.Constraint("Tangent", 5, 1, 6, 2))
sketch13.addConstraint(Sketcher.Constraint("Tangent", 6, 1, 7, 2))
sketch13.addConstraint(Sketcher.Constraint("Tangent", 7, 1, 5, 2))
sketch13.addConstraint(Sketcher.Constraint("Tangent", 8, 1, 9, 2))
sketch13.addConstraint(Sketcher.Constraint("Coincident", 9, 1, 8, 2))
sketch13.addConstraint(Sketcher.Constraint("Equal", 1, 2))
sketch13.addConstraint(Sketcher.Constraint("Equal", 4, 5))
sketch13.addConstraint(Sketcher.Constraint("Equal", 7, 8))
sketch13.addConstraint(Sketcher.Constraint("Symmetric", 0, 3, 2, 3, -2))
sketch13.addConstraint(Sketcher.Constraint("Symmetric", 5, 3, 8, 3, -2))
sketch13.addConstraint(Sketcher.Constraint("Horizontal", 4, 3, 1, 1))
sketch13.addConstraint(Sketcher.Constraint("Horizontal", 1, 1, 3, 1))
sketch13.addConstraint(Sketcher.Constraint("Horizontal", 3, 1, 4, 1))
sketch13.addConstraint(Sketcher.Constraint("Horizontal", 9, 3, 5, 1))
sketch13.addConstraint(Sketcher.Constraint("Horizontal", 5, 1, 7, 1))
sketch13.addConstraint(Sketcher.Constraint("Horizontal", 7, 1, 9, 1))
sketch13.addConstraint(Sketcher.Constraint("Vertical", 4, 3, 5, 3))
sketch13.addConstraint(Sketcher.Constraint("Vertical", 9, 3, 0, 1))
sketch13.addConstraint(Sketcher.Constraint("Vertical", 7, 3, 2, 1))
sketch13.addConstraint(Sketcher.Constraint("Vertical", 2, 1, 6, 1))
sketch13.addConstraint(Sketcher.Constraint("Vertical", 0, 1, 8, 1))
sketch13.addConstraint(Sketcher.Constraint("Radius", 0, 1.25))
sketch13.addConstraint(Sketcher.Constraint("DistanceX", 1, 3, 2, 3, 37.0))
sketch13.addConstraint(Sketcher.Constraint("DistanceY", 5, 3, 4, 3, 28.0))
sketch13.addConstraint(Sketcher.Constraint("DistanceY", 0, 3, -1, 1, 35.272622))
pocket10 = body.newObject("PartDesign::Pocket", "Pocket009")
pocket10.Profile = sketch13
pocket10.Length = 12
pocket10.Reversed = True

# Sketch on XZ plane
sketch14 = body.newObject("Sketcher::SketchObject", "Sketch013")
sketch14.AttachmentSupport = (doc.getObject("XZ_Plane"), [""])
sketch14.MapMode = "FlatFace"
sketch14.AttachmentOffset = App.Placement(V(0, 0, -4), App.Rotation())
sketch14.addGeometry(Part.Circle(V(-7, 87.3, 0), V(0, 0, 1), 1.6), False)
sketch14.addGeometry(Part.Circle(V(7, 87.3, 0), V(0, 0, 1), 1.6), False)
sketch14.addConstraint(Sketcher.Constraint("Equal", 0, 1))
sketch14.addConstraint(Sketcher.Constraint("Symmetric", 0, 3, 1, 3, -2))
sketch14.addConstraint(Sketcher.Constraint("Diameter", 0, 3.2))
sketch14.addConstraint(Sketcher.Constraint("DistanceX", 0, 3, -1, 1, 7.0))
sketch14.addConstraint(Sketcher.Constraint("DistanceY", -1, 1, 0, 3, 87.288013))
pocket11 = body.newObject("PartDesign::Pocket", "Pocket010")
pocket11.Profile = sketch14
pocket11.Length = 12
pocket11.Reversed = True

# Sketch on XZ plane
sketch15 = body.newObject("Sketcher::SketchObject", "Sketch014")
sketch15.AttachmentSupport = (doc.getObject("XZ_Plane"), [""])
sketch15.MapMode = "FlatFace"
sketch15.addGeometry(Part.Circle(V(-18.5, -35.3, 0), V(0, 0, 1), 2.5), False)
sketch15.addGeometry(Part.Circle(V(18.5, -35.3, 0), V(0, 0, 1), 2.5), False)
sketch15.addGeometry(Part.Circle(V(-18.5, -63.3, 0), V(0, 0, 1), 2.5), False)
sketch15.addGeometry(Part.Circle(V(18.5, -63.3, 0), V(0, 0, 1), 2.5), False)
sketch15.addConstraint(Sketcher.Constraint("Equal", 0, 1))
sketch15.addConstraint(Sketcher.Constraint("Equal", 1, 2))
sketch15.addConstraint(Sketcher.Constraint("Equal", 2, 3))
sketch15.addConstraint(Sketcher.Constraint("Symmetric", 0, 3, 1, 3, -2))
sketch15.addConstraint(Sketcher.Constraint("Symmetric", 2, 3, 3, 3, -2))
sketch15.addConstraint(Sketcher.Constraint("Vertical", 0, 3, 2, 3))
sketch15.addConstraint(Sketcher.Constraint("Diameter", 0, 5.0))
sketch15.addConstraint(Sketcher.Constraint("DistanceX", 0, 3, 1, 3, 37.0))
sketch15.addConstraint(Sketcher.Constraint("DistanceY", 2, 3, 0, 3, 28.0))
sketch15.addConstraint(Sketcher.Constraint("DistanceY", 0, 3, -1, 1, 35.272622))
pocket12 = body.newObject("PartDesign::Pocket", "Pocket011")
pocket12.Profile = sketch15
pocket12.Length = 2.5

doc.recompute()
